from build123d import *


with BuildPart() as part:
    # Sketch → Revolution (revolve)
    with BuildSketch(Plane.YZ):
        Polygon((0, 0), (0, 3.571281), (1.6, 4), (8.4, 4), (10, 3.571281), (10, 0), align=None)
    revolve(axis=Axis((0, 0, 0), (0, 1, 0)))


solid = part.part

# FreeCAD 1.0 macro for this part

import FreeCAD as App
import Part
import Sketcher

V = App.Vector
Q = App.Units.Quantity


def add_polygon(sketch, points):
    """Adds a closed chain of lines whose ends are joined by coincident constraints."""
    first, n = sketch.GeometryCount, len(points)
    for a, b in zip(points, points[1:] + points[:1]):
        sketch.addGeometry(Part.LineSegment(App.Vector(*a, 0), App.Vector(*b, 0)), False)
    for i in range(n):
        sketch.addConstraint(Sketcher.Constraint("Coincident", first + i, 2, first + (i + 1) % n, 1))

doc = App.newDocument("Part")
body = doc.addObject("PartDesign::Body", "Body")

# Sketch on YZ plane
sketch1 = doc.addObject("Sketcher::SketchObject", "Sketch")
body.addObject(sketch1)
sketch1.AttachmentSupport = (doc.YZ_Plane, [""])
sketch1.MapMode = "FlatFace"
add_polygon(sketch1, [(0, 3.6), (0, 0), (10, 0), (10, 3.6), (8.4, 4), (1.6, 4)])  # lines 0-5
sketch1.addConstraint(Sketcher.Constraint("Vertical", 0))
sketch1.addConstraint(Sketcher.Constraint("Horizontal", 1))
sketch1.addConstraint(Sketcher.Constraint("Vertical", 2))
sketch1.addConstraint(Sketcher.Constraint("Horizontal", 4))
sketch1.addConstraint(Sketcher.Constraint("Coincident", 0, 2, -1, 1))
sketch1.addConstraint(Sketcher.Constraint("Horizontal", 2, 2, 5, 2))
sketch1.addConstraint(Sketcher.Constraint("Equal", 3, 5))
sketch1.addConstraint(Sketcher.Constraint("DistanceX", 1, 1, 1, 2, 10.0))
sketch1.addConstraint(Sketcher.Constraint("Angle", 3, Q("164.99999 deg")))
sketch1.addConstraint(Sketcher.Constraint("DistanceX", 4, 2, 4, 1, 6.8))
sketch1.addConstraint(Sketcher.Constraint("DistanceY", -1, 1, 3, 2, 4.0))
revolution = doc.addObject("PartDesign::Revolution", "Revolution")
body.addObject(revolution)
revolution.Profile = sketch1
revolution.ReferenceAxis = (sketch1, ["H_Axis"])
revolution.Angle = 360

doc.recompute()
